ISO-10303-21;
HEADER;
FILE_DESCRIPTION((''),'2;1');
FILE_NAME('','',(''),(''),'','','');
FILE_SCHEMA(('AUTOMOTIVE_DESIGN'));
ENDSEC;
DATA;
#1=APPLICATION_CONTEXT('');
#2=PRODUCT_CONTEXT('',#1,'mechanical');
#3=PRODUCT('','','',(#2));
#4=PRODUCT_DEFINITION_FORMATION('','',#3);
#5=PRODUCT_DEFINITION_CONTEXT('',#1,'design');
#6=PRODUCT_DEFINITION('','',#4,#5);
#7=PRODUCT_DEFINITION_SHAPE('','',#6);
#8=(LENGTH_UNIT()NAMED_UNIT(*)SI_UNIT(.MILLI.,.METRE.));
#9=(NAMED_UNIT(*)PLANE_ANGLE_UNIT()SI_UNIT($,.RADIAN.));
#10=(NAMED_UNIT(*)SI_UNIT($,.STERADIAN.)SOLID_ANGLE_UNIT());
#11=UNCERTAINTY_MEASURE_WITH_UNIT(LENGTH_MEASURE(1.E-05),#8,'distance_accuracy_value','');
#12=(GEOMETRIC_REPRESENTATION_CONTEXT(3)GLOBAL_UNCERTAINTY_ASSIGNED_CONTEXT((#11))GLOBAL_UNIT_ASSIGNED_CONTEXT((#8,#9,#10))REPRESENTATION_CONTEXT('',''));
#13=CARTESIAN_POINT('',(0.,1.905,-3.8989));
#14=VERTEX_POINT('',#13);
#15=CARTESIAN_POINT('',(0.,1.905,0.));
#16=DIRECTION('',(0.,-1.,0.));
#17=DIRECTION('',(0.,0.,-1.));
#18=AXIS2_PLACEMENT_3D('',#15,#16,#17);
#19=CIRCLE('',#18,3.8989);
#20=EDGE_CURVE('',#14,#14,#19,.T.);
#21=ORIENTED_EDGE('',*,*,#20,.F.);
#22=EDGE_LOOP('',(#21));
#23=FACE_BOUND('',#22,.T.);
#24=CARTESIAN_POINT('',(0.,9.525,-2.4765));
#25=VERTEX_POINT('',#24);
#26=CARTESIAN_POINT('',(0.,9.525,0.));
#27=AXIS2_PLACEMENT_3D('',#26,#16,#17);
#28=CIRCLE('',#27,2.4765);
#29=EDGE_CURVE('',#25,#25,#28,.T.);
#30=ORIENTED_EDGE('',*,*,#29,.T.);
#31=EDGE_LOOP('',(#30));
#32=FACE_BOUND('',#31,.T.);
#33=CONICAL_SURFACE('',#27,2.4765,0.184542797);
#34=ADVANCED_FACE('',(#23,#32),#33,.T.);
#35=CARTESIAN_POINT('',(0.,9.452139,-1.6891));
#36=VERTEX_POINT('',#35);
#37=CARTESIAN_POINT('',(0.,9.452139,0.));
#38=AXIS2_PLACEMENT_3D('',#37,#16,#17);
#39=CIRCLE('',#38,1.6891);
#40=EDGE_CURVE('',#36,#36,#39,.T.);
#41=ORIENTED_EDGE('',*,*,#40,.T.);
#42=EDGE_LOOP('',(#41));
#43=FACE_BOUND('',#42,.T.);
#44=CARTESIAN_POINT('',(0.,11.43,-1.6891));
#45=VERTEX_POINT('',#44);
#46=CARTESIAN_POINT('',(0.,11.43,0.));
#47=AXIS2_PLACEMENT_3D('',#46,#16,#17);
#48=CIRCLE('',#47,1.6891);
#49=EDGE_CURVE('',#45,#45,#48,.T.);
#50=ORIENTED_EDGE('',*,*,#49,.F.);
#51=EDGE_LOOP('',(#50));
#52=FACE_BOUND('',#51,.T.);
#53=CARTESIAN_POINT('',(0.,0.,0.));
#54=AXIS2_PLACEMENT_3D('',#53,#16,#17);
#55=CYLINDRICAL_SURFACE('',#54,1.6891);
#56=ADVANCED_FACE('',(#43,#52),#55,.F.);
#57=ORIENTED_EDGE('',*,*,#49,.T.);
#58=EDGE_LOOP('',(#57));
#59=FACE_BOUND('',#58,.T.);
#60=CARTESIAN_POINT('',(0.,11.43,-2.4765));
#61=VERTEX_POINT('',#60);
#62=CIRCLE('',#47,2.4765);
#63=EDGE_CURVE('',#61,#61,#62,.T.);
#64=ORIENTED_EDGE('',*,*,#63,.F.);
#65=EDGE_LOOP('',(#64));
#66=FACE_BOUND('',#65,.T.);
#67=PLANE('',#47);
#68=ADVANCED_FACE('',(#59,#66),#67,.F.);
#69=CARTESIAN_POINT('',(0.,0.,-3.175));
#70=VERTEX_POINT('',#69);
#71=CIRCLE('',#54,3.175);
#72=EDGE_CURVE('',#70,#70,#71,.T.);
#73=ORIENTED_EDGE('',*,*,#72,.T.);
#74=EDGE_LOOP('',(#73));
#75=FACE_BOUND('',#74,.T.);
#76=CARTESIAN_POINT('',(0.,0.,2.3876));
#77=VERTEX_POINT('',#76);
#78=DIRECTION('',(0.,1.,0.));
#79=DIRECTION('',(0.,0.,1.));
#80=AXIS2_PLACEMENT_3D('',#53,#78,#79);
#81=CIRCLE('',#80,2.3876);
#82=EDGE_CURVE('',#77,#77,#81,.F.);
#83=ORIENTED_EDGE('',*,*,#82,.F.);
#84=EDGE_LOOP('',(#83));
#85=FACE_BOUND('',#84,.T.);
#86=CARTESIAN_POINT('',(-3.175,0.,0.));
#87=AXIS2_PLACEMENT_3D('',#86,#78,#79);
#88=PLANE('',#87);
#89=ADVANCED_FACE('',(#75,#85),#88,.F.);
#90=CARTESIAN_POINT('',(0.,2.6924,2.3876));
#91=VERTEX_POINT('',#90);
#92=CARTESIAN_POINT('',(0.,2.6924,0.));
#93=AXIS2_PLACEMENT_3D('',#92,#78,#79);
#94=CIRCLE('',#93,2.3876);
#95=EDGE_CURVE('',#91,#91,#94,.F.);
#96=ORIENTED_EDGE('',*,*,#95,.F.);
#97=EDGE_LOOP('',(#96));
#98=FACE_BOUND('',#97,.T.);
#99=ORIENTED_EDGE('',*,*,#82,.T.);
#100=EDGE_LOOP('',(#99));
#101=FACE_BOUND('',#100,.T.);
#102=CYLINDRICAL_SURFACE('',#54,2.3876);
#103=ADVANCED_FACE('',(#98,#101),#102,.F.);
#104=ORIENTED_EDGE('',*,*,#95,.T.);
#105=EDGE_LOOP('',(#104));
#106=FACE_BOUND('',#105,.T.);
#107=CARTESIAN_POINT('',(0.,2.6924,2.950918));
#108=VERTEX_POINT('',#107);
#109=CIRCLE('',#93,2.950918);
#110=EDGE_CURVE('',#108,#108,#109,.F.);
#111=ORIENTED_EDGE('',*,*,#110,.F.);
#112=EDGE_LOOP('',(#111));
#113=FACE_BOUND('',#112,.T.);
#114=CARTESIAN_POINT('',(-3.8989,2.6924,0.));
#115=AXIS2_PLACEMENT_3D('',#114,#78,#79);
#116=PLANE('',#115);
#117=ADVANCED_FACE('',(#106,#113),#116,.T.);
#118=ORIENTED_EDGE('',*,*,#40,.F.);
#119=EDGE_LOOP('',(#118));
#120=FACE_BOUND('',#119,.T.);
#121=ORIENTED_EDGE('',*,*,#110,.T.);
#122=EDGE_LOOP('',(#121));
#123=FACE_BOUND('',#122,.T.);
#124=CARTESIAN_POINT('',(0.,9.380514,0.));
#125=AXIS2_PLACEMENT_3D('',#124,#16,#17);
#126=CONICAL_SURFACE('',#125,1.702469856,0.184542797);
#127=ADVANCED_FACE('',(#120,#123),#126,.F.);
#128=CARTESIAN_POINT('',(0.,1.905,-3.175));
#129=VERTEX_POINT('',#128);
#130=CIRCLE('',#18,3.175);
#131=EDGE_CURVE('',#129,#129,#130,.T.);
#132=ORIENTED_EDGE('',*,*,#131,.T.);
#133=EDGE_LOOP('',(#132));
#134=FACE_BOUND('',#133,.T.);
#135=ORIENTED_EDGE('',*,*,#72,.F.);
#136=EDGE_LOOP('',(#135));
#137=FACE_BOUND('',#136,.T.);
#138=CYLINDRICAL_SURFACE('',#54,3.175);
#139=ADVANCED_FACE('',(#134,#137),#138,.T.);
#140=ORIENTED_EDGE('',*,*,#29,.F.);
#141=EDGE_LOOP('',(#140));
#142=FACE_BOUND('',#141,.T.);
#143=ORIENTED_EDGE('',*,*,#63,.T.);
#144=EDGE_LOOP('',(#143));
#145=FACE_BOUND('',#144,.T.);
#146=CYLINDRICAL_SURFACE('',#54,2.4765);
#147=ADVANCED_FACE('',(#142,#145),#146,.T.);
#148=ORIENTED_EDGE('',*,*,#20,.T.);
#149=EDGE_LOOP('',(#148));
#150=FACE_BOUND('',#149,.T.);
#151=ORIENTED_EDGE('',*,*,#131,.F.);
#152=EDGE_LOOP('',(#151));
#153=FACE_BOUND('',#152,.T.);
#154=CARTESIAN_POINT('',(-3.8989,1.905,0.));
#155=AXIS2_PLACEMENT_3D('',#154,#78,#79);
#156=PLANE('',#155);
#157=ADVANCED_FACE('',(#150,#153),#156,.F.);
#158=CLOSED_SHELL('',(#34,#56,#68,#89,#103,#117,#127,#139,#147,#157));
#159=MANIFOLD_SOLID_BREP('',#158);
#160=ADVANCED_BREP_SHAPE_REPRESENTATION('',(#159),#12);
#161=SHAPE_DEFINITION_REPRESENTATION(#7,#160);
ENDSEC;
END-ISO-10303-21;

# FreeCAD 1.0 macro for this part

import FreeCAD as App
import Part
import Sketcher
Q = App.Units.Quantity


def faces_at(feature, points):
    """Names of the faces that lie closest to the given points."""
    faces = feature.Shape.Faces
    near = lambda p: min(range(len(faces)), key=lambda i: faces[i].distToShape(Part.Vertex(*p))[0])
    return sorted({f"Face{near(p) + 1}" for p in points})


def add_polygon(sketch, points):
    """Adds a closed chain of lines whose ends are joined by coincident constraints."""
    first, n = sketch.GeometryCount, len(points)
    for a, b in zip(points, points[1:] + points[:1]):
        sketch.addGeometry(Part.LineSegment(App.Vector(*a, 0), App.Vector(*b, 0)), False)
    for i in range(n):
        sketch.addConstraint(Sketcher.Constraint("Coincident", first + i, 2, first + (i + 1) % n, 1))

doc = App.newDocument("Part")
params = doc.addObject("Spreadsheet::Sheet", "Params")
for row, (alias, value) in enumerate([
    ("sketch1_height", "0.45 in"),
    ("sketch1_width", "0.125 in"),
    ("revolution_angle", "360 deg"),
    ("thickness_wall", "0.031 in"),
], start=1):
    params.set(f"A{row}", alias)
    params.set(f"B{row}", "=" + value)
    params.setAlias(f"B{row}", alias)

body = doc.addObject("PartDesign::Body", "Body")

sketch1 = doc.addObject("Sketcher::SketchObject", "Sketch")
body.addObject(sketch1)
sketch1.AttachmentSupport = (doc.XY_Plane, [""])
sketch1.MapMode = "FlatFace"
add_polygon(sketch1, [(0, 11.4), (-2.5, 11.4), (-2.5, 9.5), (-3.9, 1.9), (-3.2, 1.9), (-3.2, 0), (0, 0)])
sketch1.addConstraint([
    Sketcher.Constraint("Horizontal", 0),
    Sketcher.Constraint("Vertical", 1),
    Sketcher.Constraint("Horizontal", 3),
    Sketcher.Constraint("Vertical", 4),
    Sketcher.Constraint("Horizontal", 5),
    Sketcher.Constraint("Vertical", 6),
    Sketcher.Constraint("Coincident", 5, 2, -1, 1),
    Sketcher.Constraint("Equal", 1, 4),
    Sketcher.Constraint("DistanceY", 6, 1, 6, 2, Q("0.45 in")),
    Sketcher.Constraint("DistanceY", 2, 2, 1, 2, Q("0.3 in")),
    Sketcher.Constraint("DistanceX", 5, 1, 5, 2, Q("0.125 in")),
    Sketcher.Constraint("DistanceX", 0, 2, 0, 1, Q("0.0975 in")),
    Sketcher.Constraint("DistanceX", 3, 1, 3, 2, Q("0.0285 in")),
])
sketch1.setExpression("Constraints[15]", "Params.sketch1_height")
sketch1.setExpression("Constraints[17]", "Params.sketch1_width")
revolution = doc.addObject("PartDesign::Revolution", "Revolution")
body.addObject(revolution)
revolution.Profile = sketch1
revolution.ReferenceAxis = (sketch1, ["V_Axis"])
revolution.setExpression("Angle", "Params.revolution_angle")
doc.recompute()

thickness = doc.addObject("PartDesign::Thickness", "Thickness")
body.addObject(thickness)
thickness.Base = (revolution, faces_at(revolution, [(0, 0, 0), (0, 11.43, 0)]))
thickness.setExpression("Value", "Params.thickness_wall")
thickness.Reversed = True
thickness.Join = "Intersection"

doc.recompute()
